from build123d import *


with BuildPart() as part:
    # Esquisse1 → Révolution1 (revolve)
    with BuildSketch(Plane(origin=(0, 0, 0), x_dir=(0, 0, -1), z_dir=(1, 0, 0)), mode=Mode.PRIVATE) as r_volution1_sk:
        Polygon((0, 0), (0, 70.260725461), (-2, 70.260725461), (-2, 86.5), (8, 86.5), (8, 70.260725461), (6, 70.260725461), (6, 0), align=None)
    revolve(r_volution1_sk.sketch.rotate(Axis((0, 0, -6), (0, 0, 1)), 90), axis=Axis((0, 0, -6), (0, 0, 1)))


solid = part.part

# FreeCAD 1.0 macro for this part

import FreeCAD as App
import Part
import Sketcher

V = App.Vector
Q = App.Units.Quantity


def add_polygon(sketch, points):
    """Adds a closed chain of lines whose ends are joined by coincident constraints."""
    first, n = sketch.GeometryCount, len(points)
    for a, b in zip(points, points[1:] + points[:1]):
        sketch.addGeometry(Part.LineSegment(App.Vector(*a, 0), App.Vector(*b, 0)), False)
    for i in range(n):
        sketch.addConstraint(Sketcher.Constraint("Coincident", first + i, 2, first + (i + 1) % n, 1))

doc = App.newDocument("Part")
body = doc.addObject("PartDesign::Body", "Body")

# Sketch on YZ plane
sketch1 = body.newObject("Sketcher::SketchObject", "Sketch")
sketch1.AttachmentSupport = (doc.getObject("YZ_Plane"), [""])
sketch1.MapMode = "FlatFace"
add_polygon(sketch1, [(70.3, 0), (0, 0), (0, -6), (70.3, -6), (70.3, -8), (86.5, -8), (86.5, 2), (70.3, 2)])  # lines 0-7
sketch1.addConstraint([
    Sketcher.Constraint("Horizontal", 0),
    Sketcher.Constraint("Vertical", 1),
    Sketcher.Constraint("Horizontal", 2),
    Sketcher.Constraint("Vertical", 3),
    Sketcher.Constraint("Horizontal", 4),
    Sketcher.Constraint("Vertical", 5),
    Sketcher.Constraint("Horizontal", 6),
    Sketcher.Constraint("Vertical", 7),
    Sketcher.Constraint("Coincident", 0, 2, -1, 1),
    Sketcher.Constraint("Vertical", 3, 2, 6, 2),
    Sketcher.Constraint("Equal", 3, 7),
    Sketcher.Constraint("DistanceY", 1, 2, 1, 1, Q("6 mm")),
    Sketcher.Constraint("DistanceY", 3, 2, 3, 1, Q("2 mm")),
    Sketcher.Constraint("DistanceX", -1, 1, 4, 2, Q("86.5 mm")),
    Sketcher.Constraint("DistanceX", 0, 2, 0, 1, Q("70.260725 mm")),
])
revolution = body.newObject("PartDesign::Revolution", "Revolution")
revolution.Profile = sketch1
revolution.ReferenceAxis = (sketch1, ["V_Axis"])
revolution.Angle = 360

doc.recompute()
